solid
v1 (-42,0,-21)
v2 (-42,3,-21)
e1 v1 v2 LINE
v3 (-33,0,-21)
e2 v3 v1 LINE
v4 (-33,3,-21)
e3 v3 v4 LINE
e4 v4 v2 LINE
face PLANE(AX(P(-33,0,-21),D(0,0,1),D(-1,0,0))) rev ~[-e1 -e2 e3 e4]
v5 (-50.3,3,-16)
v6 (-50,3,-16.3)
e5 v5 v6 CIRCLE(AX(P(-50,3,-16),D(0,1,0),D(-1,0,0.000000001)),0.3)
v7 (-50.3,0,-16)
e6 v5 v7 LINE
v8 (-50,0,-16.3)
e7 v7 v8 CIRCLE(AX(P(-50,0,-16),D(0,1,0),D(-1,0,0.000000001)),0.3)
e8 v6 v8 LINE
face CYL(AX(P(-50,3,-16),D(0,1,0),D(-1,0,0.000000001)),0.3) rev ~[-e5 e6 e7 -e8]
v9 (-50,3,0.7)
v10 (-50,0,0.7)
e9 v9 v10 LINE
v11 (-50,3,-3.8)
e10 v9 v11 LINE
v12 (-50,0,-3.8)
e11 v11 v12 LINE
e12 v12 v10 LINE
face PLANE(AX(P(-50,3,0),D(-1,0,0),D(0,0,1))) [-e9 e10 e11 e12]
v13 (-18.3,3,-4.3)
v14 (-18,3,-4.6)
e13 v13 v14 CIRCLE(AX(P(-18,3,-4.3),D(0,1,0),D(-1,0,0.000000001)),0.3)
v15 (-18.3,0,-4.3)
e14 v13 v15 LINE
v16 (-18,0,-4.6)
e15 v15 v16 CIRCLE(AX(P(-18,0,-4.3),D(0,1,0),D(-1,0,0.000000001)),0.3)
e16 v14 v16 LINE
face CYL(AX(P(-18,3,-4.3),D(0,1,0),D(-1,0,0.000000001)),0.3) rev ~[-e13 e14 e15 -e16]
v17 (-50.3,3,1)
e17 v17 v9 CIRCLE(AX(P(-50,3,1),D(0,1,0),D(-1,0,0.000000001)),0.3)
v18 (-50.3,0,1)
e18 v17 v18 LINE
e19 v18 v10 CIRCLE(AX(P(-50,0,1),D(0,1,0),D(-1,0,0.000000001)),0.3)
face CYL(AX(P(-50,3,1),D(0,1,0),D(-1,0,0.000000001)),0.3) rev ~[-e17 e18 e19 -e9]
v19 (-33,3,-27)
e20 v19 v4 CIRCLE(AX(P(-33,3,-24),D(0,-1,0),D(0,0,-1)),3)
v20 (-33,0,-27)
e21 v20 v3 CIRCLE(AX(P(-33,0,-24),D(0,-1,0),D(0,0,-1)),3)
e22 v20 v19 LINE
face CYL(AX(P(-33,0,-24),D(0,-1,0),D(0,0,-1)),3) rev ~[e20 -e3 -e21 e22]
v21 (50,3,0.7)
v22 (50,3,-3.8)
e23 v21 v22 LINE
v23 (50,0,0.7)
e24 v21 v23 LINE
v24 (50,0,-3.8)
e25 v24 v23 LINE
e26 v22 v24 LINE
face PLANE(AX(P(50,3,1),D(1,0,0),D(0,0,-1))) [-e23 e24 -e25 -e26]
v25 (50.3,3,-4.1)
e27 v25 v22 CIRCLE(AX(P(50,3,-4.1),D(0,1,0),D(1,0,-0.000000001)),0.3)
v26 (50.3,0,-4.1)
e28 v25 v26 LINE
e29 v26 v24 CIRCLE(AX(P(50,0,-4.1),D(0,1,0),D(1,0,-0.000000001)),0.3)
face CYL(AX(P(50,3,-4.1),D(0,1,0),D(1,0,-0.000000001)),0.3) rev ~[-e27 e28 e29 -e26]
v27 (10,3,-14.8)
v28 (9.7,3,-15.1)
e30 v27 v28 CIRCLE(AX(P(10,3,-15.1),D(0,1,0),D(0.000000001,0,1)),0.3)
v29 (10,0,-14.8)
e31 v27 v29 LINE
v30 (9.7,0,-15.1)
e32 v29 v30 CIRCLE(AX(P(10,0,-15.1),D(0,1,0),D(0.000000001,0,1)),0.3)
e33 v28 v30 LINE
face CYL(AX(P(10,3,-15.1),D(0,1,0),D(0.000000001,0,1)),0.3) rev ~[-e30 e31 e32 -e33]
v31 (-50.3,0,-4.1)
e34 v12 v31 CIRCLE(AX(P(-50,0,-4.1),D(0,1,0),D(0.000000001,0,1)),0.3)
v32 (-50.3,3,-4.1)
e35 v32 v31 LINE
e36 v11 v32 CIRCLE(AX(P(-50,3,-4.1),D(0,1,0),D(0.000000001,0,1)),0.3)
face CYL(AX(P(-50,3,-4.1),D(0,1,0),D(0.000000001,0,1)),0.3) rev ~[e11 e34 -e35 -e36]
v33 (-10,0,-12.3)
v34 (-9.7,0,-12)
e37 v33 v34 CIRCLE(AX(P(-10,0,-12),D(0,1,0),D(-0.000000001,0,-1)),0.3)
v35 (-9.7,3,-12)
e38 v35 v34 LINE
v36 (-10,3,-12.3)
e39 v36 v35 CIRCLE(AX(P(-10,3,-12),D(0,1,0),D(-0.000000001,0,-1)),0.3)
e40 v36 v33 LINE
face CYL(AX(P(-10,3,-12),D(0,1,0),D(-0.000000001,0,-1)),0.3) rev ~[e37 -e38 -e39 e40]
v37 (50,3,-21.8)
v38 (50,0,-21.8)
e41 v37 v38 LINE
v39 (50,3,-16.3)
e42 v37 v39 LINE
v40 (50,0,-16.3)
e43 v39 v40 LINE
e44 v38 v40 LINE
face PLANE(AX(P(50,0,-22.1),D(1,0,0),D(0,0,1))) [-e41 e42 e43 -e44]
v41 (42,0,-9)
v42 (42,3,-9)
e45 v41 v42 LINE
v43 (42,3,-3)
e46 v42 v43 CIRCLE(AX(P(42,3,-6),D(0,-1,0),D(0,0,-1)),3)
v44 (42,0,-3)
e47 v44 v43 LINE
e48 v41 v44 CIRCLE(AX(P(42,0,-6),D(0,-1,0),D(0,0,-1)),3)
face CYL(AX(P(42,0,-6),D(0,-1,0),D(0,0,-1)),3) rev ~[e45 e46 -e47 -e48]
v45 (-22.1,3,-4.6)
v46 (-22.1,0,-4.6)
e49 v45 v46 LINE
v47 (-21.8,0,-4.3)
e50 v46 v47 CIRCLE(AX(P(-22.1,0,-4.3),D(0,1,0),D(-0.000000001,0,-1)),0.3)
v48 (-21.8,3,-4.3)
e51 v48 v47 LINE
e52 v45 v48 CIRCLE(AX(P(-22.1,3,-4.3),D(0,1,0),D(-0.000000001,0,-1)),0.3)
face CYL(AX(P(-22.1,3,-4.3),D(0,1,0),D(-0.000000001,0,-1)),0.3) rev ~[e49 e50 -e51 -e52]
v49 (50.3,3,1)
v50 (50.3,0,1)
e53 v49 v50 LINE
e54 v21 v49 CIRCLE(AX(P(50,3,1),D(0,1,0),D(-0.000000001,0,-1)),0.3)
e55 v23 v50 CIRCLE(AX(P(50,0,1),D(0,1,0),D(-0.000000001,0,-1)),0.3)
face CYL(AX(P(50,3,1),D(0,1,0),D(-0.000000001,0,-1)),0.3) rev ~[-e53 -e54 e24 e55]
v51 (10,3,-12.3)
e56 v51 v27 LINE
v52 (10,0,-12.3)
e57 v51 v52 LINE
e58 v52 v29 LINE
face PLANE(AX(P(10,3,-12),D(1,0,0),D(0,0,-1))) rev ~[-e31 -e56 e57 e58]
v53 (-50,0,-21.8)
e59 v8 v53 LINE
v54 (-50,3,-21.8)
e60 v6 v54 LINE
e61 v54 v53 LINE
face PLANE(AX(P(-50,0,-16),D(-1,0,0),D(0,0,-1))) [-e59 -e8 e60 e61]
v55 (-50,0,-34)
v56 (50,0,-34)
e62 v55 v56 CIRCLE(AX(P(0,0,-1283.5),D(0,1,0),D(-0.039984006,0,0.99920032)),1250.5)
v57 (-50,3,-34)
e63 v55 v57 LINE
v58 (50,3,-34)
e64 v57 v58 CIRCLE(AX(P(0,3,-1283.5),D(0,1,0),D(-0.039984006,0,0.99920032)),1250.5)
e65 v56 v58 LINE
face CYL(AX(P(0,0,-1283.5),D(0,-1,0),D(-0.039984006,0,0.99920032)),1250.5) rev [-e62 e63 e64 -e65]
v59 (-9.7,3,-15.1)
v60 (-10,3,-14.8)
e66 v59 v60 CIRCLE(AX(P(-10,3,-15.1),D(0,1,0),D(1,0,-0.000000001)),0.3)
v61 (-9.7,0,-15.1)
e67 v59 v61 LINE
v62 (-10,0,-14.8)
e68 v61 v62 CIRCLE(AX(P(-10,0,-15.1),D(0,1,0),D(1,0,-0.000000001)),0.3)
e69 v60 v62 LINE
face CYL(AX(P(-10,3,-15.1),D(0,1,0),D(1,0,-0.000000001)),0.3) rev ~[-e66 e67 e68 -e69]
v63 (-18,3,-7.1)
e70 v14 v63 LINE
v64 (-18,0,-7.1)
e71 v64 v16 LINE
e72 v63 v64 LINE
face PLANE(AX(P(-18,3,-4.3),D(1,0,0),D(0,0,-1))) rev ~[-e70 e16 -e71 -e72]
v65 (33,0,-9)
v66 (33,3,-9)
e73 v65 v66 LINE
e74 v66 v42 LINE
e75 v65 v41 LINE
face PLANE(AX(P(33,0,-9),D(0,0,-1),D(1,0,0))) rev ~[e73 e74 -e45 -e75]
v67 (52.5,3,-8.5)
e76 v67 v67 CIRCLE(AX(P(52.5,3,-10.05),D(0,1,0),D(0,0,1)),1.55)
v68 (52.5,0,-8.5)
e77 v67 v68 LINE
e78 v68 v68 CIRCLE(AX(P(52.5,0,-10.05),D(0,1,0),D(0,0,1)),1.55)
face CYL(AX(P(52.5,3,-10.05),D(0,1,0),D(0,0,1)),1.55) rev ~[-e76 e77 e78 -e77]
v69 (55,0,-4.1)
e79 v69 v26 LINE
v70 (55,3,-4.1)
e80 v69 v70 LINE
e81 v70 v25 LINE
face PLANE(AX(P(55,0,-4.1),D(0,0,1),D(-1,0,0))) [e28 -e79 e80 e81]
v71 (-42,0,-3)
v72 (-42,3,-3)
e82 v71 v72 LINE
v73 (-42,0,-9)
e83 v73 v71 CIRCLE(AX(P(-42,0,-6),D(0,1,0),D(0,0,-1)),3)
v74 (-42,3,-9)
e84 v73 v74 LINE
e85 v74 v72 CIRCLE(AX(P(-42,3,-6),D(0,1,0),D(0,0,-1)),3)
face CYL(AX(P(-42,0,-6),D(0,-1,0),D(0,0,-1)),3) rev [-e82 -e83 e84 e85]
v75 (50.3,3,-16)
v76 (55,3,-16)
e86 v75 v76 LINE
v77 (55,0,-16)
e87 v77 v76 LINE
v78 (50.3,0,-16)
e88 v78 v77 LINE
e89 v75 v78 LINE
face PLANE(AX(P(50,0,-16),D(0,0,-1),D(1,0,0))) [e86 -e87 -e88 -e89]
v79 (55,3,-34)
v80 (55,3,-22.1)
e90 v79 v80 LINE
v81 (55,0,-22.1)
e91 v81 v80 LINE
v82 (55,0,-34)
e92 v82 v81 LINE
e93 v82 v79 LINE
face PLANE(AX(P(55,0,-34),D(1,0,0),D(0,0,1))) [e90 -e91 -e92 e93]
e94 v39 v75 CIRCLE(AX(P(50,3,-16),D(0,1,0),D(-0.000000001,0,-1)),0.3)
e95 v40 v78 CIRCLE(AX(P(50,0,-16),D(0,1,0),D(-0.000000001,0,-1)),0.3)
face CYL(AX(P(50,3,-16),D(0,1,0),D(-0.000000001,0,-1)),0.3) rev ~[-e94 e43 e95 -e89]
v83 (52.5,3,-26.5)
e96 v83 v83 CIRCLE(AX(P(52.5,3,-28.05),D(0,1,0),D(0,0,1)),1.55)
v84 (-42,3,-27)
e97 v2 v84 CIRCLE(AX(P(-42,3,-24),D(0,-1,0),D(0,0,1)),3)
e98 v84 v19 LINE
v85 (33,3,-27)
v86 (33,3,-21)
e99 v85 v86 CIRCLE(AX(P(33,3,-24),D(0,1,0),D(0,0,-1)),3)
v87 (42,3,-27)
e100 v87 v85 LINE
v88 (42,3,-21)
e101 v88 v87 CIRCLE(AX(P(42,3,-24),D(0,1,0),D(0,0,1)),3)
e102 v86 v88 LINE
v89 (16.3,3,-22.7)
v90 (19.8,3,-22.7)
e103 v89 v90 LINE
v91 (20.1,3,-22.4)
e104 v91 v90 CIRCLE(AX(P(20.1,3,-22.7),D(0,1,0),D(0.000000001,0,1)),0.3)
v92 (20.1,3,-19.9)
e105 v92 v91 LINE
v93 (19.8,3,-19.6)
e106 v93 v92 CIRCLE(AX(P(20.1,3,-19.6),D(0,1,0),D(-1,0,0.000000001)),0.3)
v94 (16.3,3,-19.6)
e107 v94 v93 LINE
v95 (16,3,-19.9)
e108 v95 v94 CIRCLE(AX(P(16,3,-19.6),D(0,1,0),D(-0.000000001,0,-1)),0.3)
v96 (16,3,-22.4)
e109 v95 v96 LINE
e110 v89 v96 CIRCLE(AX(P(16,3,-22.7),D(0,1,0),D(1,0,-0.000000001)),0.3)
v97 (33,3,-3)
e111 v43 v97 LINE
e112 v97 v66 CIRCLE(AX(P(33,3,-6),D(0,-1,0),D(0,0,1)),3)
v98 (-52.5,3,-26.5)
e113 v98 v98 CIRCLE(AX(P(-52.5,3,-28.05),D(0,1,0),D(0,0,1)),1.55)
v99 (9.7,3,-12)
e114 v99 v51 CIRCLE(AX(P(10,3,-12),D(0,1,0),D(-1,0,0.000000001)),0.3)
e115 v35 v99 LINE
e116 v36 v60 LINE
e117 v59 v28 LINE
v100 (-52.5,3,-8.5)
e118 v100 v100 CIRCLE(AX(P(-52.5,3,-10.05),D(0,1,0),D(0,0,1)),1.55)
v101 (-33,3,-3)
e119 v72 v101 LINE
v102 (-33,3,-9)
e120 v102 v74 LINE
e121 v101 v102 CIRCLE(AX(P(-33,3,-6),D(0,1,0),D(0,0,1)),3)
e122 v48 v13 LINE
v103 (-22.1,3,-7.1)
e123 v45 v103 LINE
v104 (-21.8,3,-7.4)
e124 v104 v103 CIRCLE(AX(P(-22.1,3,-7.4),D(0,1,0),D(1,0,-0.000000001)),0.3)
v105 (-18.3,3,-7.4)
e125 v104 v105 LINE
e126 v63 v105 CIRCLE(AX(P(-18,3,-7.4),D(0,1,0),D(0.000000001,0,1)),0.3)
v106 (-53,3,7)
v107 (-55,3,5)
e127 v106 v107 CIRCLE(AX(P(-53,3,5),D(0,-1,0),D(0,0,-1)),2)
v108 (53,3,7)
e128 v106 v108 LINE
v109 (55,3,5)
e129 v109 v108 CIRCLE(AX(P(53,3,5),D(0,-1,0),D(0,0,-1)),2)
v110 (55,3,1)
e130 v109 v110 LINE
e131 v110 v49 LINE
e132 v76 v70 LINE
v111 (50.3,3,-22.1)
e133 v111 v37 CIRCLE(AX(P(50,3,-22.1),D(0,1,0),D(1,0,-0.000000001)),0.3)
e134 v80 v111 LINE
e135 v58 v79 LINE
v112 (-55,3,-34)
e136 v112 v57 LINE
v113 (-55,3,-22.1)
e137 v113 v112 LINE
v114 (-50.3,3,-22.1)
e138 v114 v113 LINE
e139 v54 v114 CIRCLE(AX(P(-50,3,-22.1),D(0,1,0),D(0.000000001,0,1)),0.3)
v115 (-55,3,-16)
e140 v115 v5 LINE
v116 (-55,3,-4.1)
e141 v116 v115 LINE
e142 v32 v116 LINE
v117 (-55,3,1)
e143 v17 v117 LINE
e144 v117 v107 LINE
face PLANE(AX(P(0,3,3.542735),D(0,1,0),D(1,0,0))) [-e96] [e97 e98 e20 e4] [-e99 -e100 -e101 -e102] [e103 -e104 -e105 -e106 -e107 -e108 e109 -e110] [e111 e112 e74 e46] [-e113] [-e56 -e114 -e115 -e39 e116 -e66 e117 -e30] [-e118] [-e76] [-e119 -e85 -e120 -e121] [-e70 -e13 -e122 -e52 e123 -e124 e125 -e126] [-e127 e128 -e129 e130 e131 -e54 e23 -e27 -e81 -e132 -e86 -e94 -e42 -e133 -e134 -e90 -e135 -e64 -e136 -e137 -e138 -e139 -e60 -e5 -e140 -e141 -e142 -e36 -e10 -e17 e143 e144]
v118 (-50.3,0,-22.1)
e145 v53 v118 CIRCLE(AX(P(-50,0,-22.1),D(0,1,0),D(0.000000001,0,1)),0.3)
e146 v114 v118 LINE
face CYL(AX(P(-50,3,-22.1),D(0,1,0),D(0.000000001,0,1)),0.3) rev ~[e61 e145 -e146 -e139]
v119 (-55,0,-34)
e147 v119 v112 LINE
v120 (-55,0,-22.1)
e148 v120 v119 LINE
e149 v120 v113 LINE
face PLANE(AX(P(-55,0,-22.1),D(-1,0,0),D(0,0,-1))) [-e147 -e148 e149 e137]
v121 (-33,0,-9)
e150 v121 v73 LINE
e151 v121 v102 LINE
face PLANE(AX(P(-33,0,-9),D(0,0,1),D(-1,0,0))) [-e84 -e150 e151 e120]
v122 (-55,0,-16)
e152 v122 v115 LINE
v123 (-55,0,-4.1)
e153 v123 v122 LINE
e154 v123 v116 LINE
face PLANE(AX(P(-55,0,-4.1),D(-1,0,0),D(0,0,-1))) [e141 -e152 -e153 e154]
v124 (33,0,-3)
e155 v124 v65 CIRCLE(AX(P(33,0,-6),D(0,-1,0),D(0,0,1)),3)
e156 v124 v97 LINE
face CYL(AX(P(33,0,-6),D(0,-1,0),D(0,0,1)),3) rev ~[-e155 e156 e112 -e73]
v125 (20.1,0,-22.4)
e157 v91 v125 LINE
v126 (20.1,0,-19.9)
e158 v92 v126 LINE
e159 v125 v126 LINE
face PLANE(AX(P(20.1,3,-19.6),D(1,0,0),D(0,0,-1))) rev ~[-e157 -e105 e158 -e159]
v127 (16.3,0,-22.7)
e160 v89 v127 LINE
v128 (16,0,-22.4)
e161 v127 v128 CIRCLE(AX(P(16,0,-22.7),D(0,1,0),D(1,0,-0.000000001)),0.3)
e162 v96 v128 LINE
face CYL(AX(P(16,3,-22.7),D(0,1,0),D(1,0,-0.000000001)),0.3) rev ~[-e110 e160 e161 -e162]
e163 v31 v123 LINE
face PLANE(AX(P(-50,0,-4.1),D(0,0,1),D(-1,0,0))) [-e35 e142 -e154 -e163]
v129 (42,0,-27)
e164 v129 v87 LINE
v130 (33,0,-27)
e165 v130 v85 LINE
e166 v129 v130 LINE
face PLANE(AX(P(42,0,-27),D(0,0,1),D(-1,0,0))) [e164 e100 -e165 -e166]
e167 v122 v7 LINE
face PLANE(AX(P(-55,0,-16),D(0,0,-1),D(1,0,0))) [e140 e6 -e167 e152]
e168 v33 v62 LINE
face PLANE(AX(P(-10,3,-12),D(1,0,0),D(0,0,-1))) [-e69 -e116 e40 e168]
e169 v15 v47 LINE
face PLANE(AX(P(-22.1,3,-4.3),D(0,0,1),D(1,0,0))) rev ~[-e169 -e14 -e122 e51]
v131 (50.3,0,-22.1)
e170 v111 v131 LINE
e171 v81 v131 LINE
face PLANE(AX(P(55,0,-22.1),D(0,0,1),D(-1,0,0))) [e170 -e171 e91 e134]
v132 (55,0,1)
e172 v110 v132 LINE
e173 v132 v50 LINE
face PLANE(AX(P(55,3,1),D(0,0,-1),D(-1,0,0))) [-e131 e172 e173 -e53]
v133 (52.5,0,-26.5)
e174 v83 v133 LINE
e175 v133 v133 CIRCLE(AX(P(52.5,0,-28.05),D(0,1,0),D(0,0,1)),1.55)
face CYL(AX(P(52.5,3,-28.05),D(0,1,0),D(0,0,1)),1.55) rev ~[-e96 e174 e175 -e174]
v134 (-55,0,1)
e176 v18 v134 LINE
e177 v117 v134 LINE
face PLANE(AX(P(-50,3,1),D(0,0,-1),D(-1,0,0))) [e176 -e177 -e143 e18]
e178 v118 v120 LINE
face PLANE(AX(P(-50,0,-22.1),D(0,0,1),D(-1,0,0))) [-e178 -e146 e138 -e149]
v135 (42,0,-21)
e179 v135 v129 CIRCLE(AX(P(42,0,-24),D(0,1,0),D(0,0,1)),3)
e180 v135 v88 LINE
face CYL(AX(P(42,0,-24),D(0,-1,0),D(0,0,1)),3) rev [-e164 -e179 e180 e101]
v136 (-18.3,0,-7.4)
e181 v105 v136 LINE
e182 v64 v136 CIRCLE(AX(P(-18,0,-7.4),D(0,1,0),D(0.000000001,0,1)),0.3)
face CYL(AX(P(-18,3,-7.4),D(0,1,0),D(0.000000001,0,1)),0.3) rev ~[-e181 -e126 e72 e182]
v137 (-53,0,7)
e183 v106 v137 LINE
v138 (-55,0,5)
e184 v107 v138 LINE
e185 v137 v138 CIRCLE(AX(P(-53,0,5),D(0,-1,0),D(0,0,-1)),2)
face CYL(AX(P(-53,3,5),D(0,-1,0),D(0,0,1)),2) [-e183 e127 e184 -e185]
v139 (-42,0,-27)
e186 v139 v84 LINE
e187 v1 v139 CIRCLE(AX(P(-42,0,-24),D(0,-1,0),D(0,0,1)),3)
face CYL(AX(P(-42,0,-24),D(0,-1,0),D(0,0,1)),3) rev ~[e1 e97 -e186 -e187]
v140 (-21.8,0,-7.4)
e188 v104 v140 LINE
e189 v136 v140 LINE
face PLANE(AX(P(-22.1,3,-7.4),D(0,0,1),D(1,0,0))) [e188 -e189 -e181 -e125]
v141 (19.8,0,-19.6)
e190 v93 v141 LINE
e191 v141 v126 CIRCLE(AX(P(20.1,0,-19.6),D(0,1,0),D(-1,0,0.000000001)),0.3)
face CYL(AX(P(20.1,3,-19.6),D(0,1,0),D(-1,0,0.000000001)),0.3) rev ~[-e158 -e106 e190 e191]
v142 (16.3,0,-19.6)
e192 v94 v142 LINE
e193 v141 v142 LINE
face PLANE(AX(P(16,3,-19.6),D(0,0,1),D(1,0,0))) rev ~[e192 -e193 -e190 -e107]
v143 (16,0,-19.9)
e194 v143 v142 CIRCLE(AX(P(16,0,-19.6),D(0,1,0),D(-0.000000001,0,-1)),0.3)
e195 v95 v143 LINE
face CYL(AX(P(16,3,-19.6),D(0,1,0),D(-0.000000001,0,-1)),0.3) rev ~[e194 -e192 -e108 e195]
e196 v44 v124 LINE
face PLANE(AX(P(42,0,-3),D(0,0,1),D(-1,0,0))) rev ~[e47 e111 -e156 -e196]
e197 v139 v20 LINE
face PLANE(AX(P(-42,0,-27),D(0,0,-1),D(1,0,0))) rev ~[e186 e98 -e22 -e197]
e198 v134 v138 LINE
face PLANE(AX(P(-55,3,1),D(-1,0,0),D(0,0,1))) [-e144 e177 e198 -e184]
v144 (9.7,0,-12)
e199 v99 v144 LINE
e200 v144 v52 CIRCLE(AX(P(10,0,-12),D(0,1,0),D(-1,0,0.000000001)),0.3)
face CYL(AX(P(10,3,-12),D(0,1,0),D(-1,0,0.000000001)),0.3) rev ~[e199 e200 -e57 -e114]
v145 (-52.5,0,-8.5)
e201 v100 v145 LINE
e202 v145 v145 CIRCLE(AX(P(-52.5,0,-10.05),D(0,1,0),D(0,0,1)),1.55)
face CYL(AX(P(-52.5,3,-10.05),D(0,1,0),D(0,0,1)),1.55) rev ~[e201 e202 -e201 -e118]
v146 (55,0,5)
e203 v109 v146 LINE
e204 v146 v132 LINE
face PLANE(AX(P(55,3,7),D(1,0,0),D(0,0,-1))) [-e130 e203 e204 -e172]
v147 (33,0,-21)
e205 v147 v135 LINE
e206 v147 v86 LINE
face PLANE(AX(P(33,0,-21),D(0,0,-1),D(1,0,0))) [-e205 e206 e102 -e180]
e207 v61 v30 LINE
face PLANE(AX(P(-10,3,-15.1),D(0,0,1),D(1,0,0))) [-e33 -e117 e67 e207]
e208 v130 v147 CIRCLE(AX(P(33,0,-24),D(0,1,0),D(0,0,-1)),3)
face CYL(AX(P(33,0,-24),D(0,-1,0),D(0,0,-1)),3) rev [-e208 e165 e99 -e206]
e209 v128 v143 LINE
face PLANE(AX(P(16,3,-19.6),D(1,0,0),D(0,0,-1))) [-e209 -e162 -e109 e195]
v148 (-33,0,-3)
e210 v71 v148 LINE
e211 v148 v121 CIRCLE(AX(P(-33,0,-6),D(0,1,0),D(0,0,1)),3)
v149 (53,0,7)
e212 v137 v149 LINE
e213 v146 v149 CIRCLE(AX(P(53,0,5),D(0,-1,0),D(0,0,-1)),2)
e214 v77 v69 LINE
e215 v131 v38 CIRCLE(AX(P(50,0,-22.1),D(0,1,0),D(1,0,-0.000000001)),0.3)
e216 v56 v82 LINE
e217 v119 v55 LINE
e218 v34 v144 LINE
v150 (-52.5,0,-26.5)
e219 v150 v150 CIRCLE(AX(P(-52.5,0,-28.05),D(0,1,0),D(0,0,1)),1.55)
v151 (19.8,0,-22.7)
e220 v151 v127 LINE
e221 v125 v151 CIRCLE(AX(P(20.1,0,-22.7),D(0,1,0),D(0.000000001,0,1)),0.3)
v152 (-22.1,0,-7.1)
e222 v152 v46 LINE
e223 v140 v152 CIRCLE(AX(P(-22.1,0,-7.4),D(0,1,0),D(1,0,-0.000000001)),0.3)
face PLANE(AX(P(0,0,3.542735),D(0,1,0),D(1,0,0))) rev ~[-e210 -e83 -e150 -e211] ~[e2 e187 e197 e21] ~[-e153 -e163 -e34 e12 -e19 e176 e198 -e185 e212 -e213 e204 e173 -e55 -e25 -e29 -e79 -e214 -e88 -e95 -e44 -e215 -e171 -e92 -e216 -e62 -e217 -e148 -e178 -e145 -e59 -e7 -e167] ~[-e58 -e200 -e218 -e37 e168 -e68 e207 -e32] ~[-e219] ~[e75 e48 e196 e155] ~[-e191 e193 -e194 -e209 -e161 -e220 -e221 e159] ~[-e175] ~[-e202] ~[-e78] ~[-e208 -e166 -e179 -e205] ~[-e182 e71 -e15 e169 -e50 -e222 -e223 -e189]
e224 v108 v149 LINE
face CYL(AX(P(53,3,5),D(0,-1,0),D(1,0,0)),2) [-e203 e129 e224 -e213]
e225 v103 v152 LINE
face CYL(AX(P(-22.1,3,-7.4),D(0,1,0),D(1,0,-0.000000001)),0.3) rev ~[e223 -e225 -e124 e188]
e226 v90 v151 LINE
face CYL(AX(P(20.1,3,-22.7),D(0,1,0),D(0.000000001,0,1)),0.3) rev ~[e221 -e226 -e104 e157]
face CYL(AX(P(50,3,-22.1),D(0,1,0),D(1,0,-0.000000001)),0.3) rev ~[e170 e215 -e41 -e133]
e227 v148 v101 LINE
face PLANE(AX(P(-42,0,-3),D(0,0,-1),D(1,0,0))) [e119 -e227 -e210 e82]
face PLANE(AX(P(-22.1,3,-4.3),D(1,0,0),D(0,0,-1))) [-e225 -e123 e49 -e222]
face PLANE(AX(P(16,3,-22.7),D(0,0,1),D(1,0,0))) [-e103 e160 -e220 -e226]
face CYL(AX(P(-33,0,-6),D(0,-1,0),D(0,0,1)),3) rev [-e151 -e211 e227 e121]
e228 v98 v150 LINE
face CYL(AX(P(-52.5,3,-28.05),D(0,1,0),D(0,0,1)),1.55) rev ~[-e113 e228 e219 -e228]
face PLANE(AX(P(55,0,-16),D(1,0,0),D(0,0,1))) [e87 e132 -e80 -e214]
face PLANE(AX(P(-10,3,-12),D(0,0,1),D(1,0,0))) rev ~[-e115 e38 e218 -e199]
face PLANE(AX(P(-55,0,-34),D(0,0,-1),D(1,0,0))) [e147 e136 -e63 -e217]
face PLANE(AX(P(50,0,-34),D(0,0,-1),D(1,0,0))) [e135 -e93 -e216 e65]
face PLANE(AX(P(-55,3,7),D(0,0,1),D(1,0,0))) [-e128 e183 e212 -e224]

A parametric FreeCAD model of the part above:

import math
import FreeCAD as App
import Part
import Sketcher

V = App.Vector
Q = App.Units.Quantity


def edges_at(feature, points):
    """Names of the edges that pass closest to the given points."""
    edges = feature.Shape.Edges
    near = lambda p: min(range(len(edges)), key=lambda i: edges[i].distToShape(Part.Vertex(*p))[0])
    return sorted({f"Edge{near(p) + 1}" for p in points})


def add_polygon(sketch, points):
    """Adds a closed chain of lines whose ends are joined by coincident constraints."""
    first, n = sketch.GeometryCount, len(points)
    for a, b in zip(points, points[1:] + points[:1]):
        sketch.addGeometry(Part.LineSegment(App.Vector(*a, 0), App.Vector(*b, 0)), False)
    for i in range(n):
        sketch.addConstraint(Sketcher.Constraint("Coincident", first + i, 2, first + (i + 1) % n, 1))

doc = App.newDocument("Part")
params = doc.addObject("Spreadsheet::Sheet", "Params")
for row, (alias, value) in enumerate([
    ("sketch1_radius", "3 mm"),
    ("sketch1_radius2", "1250.5 mm"),
    ("sketch1_width", "5 mm"),
    ("sketch1_width2", "100 mm"),
    ("sketch1_width3", "9 mm"),
    ("pad1_length", "3 mm"),
    ("sketch2_width", "4.1 mm"),
    ("sketch2_height", "3.1 mm"),
    ("pocket1_length", "10 mm"),
    ("sketch3_width", "5 mm"),
    ("sketch3_width2", "110 mm"),
    ("sketch3_height", "1 mm"),
    ("sketch3_height2", "6 mm"),
    ("pad2_length", "3 mm"),
    ("fillet_radius", "2 mm"),
    ("sketch4_diameter", "3.1 mm"),
    ("sketch4_width", "20 mm"),
    ("sketch4_height", "3.1 mm"),
    ("pocket2_length", "3 mm"),
    ("sketch5_radius", "0.3 mm"),
    ("pocket3_length", "10 mm"),
], start=1):
    params.set(f"A{row}", alias)
    params.set(f"B{row}", "=" + value)
    params.setAlias(f"B{row}", alias)

body = doc.addObject("PartDesign::Body", "Body")

sketch1 = body.newObject("Sketcher::SketchObject", "Sketch")
sketch1.AttachmentSupport = (doc.getObject("XZ_Plane"), [""])
sketch1.MapMode = "FlatFace"
sketch1.addGeometry([
    Part.LineSegment(V(55, -22.1, 0), V(55, -34, 0)),
    Part.LineSegment(V(55, -34, 0), V(50, -34, 0)),
    Part.ArcOfCircle(Part.Circle(V(0, -1283.5, 0), V(0, 0, 1), 1250.5), math.radians(87.708474), math.radians(92.291526)),
    Part.LineSegment(V(-50, -34, 0), V(-55, -34, 0)),
    Part.LineSegment(V(-55, -34, 0), V(-55, -22.1, 0)),
    Part.LineSegment(V(-55, -22.1, 0), V(-50, -22.1, 0)),
    Part.LineSegment(V(-50, -22.1, 0), V(-50, -16, 0)),
    Part.LineSegment(V(-50, -16, 0), V(-55, -16, 0)),
    Part.LineSegment(V(-55, -16, 0), V(-55, -4.1, 0)),
    Part.LineSegment(V(-55, -4.1, 0), V(-50, -4.1, 0)),
    Part.LineSegment(V(-50, -4.1, 0), V(-50, 0, 0)),
    Part.LineSegment(V(-50, 0, 0), V(50, 0, 0)),
    Part.LineSegment(V(50, 0, 0), V(50, -4.1, 0)),
    Part.LineSegment(V(50, -4.1, 0), V(55, -4.1, 0)),
    Part.LineSegment(V(55, -4.1, 0), V(55, -16, 0)),
    Part.LineSegment(V(55, -16, 0), V(50, -16, 0)),
    Part.LineSegment(V(50, -16, 0), V(50, -22.1, 0)),
    Part.LineSegment(V(50, -22.1, 0), V(55, -22.1, 0)),
    Part.LineSegment(V(33, -9, 0), V(42, -9, 0)),
    Part.ArcOfCircle(Part.Circle(V(42, -6, 0), V(0, 0, 1), 3), math.radians(-90), math.radians(90)),
    Part.LineSegment(V(42, -3, 0), V(33, -3, 0)),
    Part.ArcOfCircle(Part.Circle(V(33, -6, 0), V(0, 0, 1), 3), math.radians(90), math.radians(270)),
    Part.ArcOfCircle(Part.Circle(V(-42, -6, 0), V(0, 0, 1), 3), math.radians(90), math.radians(270)),
    Part.LineSegment(V(-42, -9, 0), V(-33, -9, 0)),
    Part.ArcOfCircle(Part.Circle(V(-33, -6, 0), V(0, 0, 1), 3), math.radians(-90), math.radians(90)),
    Part.LineSegment(V(-33, -3, 0), V(-42, -3, 0)),
    Part.ArcOfCircle(Part.Circle(V(42, -24, 0), V(0, 0, 1), 3), math.radians(-90), math.radians(90)),
    Part.LineSegment(V(42, -21, 0), V(33, -21, 0)),
    Part.ArcOfCircle(Part.Circle(V(33, -24, 0), V(0, 0, 1), 3), math.radians(90), math.radians(270)),
    Part.LineSegment(V(33, -27, 0), V(42, -27, 0)),
    Part.LineSegment(V(-33, -21, 0), V(-42, -21, 0)),
    Part.ArcOfCircle(Part.Circle(V(-42, -24, 0), V(0, 0, 1), 3), math.radians(90), math.radians(270)),
    Part.LineSegment(V(-42, -27, 0), V(-33, -27, 0)),
    Part.ArcOfCircle(Part.Circle(V(-33, -24, 0), V(0, 0, 1), 3), math.radians(-90), math.radians(90)),
], False)
sketch1.addConstraint([
    Sketcher.Constraint("Coincident", 0, 2, 1, 1),
    Sketcher.Constraint("Coincident", 1, 2, 2, 1),
    Sketcher.Constraint("Coincident", 2, 2, 3, 1),
    Sketcher.Constraint("Coincident", 3, 2, 4, 1),
    Sketcher.Constraint("Coincident", 4, 2, 5, 1),
    Sketcher.Constraint("Coincident", 5, 2, 6, 1),
    Sketcher.Constraint("Coincident", 6, 2, 7, 1),
    Sketcher.Constraint("Coincident", 7, 2, 8, 1),
    Sketcher.Constraint("Coincident", 8, 2, 9, 1),
    Sketcher.Constraint("Coincident", 9, 2, 10, 1),
    Sketcher.Constraint("Coincident", 10, 2, 11, 1),
    Sketcher.Constraint("Coincident", 11, 2, 12, 1),
    Sketcher.Constraint("Coincident", 12, 2, 13, 1),
    Sketcher.Constraint("Coincident", 13, 2, 14, 1),
    Sketcher.Constraint("Coincident", 14, 2, 15, 1),
    Sketcher.Constraint("Coincident", 15, 2, 16, 1),
    Sketcher.Constraint("Coincident", 16, 2, 17, 1),
    Sketcher.Constraint("Coincident", 17, 2, 0, 1),
    Sketcher.Constraint("Tangent", 18, 2, 19, 1),
    Sketcher.Constraint("Tangent", 19, 2, 20, 1),
    Sketcher.Constraint("Tangent", 20, 2, 21, 1),
    Sketcher.Constraint("Tangent", 21, 2, 18, 1),
    Sketcher.Constraint("Tangent", 22, 2, 23, 1),
    Sketcher.Constraint("Tangent", 23, 2, 24, 1),
    Sketcher.Constraint("Tangent", 24, 2, 25, 1),
    Sketcher.Constraint("Tangent", 25, 2, 22, 1),
    Sketcher.Constraint("Tangent", 26, 2, 27, 1),
    Sketcher.Constraint("Tangent", 27, 2, 28, 1),
    Sketcher.Constraint("Tangent", 28, 2, 29, 1),
    Sketcher.Constraint("Tangent", 29, 2, 26, 1),
    Sketcher.Constraint("Tangent", 30, 2, 31, 1),
    Sketcher.Constraint("Tangent", 31, 2, 32, 1),
    Sketcher.Constraint("Tangent", 32, 2, 33, 1),
    Sketcher.Constraint("Tangent", 33, 2, 30, 1),
    Sketcher.Constraint("Vertical", 0),
    Sketcher.Constraint("Horizontal", 1),
    Sketcher.Constraint("Horizontal", 3),
    Sketcher.Constraint("Vertical", 4),
    Sketcher.Constraint("Horizontal", 5),
    Sketcher.Constraint("Vertical", 6),
    Sketcher.Constraint("Horizontal", 7),
    Sketcher.Constraint("Vertical", 8),
    Sketcher.Constraint("Horizontal", 9),
    Sketcher.Constraint("Vertical", 10),
    Sketcher.Constraint("Horizontal", 11),
    Sketcher.Constraint("Vertical", 12),
    Sketcher.Constraint("Horizontal", 13),
    Sketcher.Constraint("Vertical", 14),
    Sketcher.Constraint("Horizontal", 15),
    Sketcher.Constraint("Vertical", 16),
    Sketcher.Constraint("Horizontal", 17),
    Sketcher.Constraint("Horizontal", 18),
    Sketcher.Constraint("Horizontal", 20),
    Sketcher.Constraint("Horizontal", 23),
    Sketcher.Constraint("Horizontal", 25),
    Sketcher.Constraint("Horizontal", 27),
    Sketcher.Constraint("Horizontal", 29),
    Sketcher.Constraint("Horizontal", 30),
    Sketcher.Constraint("Horizontal", 32),
    Sketcher.Constraint("Equal", 21, 22),
    Sketcher.Constraint("Equal", 24, 26),
    Sketcher.Constraint("Equal", 28, 31),
    Sketcher.Constraint("Symmetric", 10, 2, 11, 2, -1, 1),
    Sketcher.Constraint("Symmetric", 19, 3, 22, 3, -2),
    Sketcher.Constraint("Symmetric", 26, 3, 31, 3, -2),
    Sketcher.Constraint("Symmetric", 0, 2, 3, 2, -2),
    Sketcher.Constraint("Symmetric", 8, 2, 13, 2, -2),
    Sketcher.Constraint("Symmetric", 6, 2, 15, 2, -2),
    Sketcher.Constraint("PointOnObject", 2, 3, -2),
    Sketcher.Constraint("Horizontal", 5, 2, 16, 2),
    Sketcher.Constraint("Vertical", 19, 3, 26, 3),
    Sketcher.Constraint("Vertical", 21, 3, 28, 3),
    Sketcher.Constraint("Vertical", 24, 3, 33, 3),
    Sketcher.Constraint("Vertical", 4, 2, 7, 2),
    Sketcher.Constraint("Vertical", 6, 2, 9, 2),
    Sketcher.Constraint("Vertical", 1, 2, 11, 2),
    Sketcher.Constraint("Equal", 20, 23),
    Sketcher.Constraint("Equal", 4, 8),
    Sketcher.Constraint("Radius", 19, Q("3 mm")),
    Sketcher.Constraint("Radius", 2, Q("1250.5 mm")),
    Sketcher.Constraint("DistanceX", 1, 2, 1, 1, Q("5 mm")),
    Sketcher.Constraint("DistanceX", 11, 1, 11, 2, Q("100 mm")),
    Sketcher.Constraint("DistanceX", 18, 1, 18, 2, Q("9 mm")),
    Sketcher.Constraint("DistanceY", 0, 2, 0, 1, Q("11.9 mm")),
    Sketcher.Constraint("DistanceY", 6, 1, 6, 2, Q("6.1 mm")),
    Sketcher.Constraint("DistanceY", 10, 1, 10, 2, Q("4.1 mm")),
    Sketcher.Constraint("DistanceX", -1, 1, 19, 3, Q("42 mm")),
    Sketcher.Constraint("DistanceY", 19, 3, -1, 1, Q("6 mm")),
    Sketcher.Constraint("DistanceY", 26, 3, -1, 1, Q("24 mm")),
])
sketch1.setExpression("Constraints[78]", "Params.sketch1_radius")
sketch1.setExpression("Constraints[79]", "Params.sketch1_radius2")
sketch1.setExpression("Constraints[80]", "Params.sketch1_width")
sketch1.setExpression("Constraints[81]", "Params.sketch1_width2")
sketch1.setExpression("Constraints[82]", "Params.sketch1_width3")
pad1 = body.newObject("PartDesign::Pad", "Pad")
pad1.Profile = sketch1
pad1.setExpression("Length", "Params.pad1_length")
pad1.Reversed = True

sketch2 = body.newObject("Sketcher::SketchObject", "Sketch001")
sketch2.AttachmentSupport = (doc.getObject("XZ_Plane"), [""])
sketch2.MapMode = "FlatFace"
sketch2.AttachmentOffset = App.Placement(V(0, 0, -3), App.Rotation())
add_polygon(sketch2, [(-22.1, -7.4), (-22.1, -4.3), (-18, -4.3), (-18, -7.4)])
add_polygon(sketch2, [(16, -22.7), (16, -19.6), (20.1, -19.6), (20.1, -22.7)])
sketch2.addConstraint([
    Sketcher.Constraint("Vertical", 0),
    Sketcher.Constraint("Horizontal", 1),
    Sketcher.Constraint("Vertical", 2),
    Sketcher.Constraint("Horizontal", 3),
    Sketcher.Constraint("Vertical", 4),
    Sketcher.Constraint("Horizontal", 5),
    Sketcher.Constraint("Vertical", 6),
    Sketcher.Constraint("Horizontal", 7),
    Sketcher.Constraint("Equal", 3, 5),
    Sketcher.Constraint("Equal", 2, 4),
    Sketcher.Constraint("DistanceX", 1, 1, 1, 2, Q("4.1 mm")),
    Sketcher.Constraint("DistanceY", 0, 1, 0, 2, Q("3.1 mm")),
    Sketcher.Constraint("DistanceX", 1, 2, -1, 1, Q("18 mm")),
    Sketcher.Constraint("DistanceX", -1, 1, 4, 2, Q("16 mm")),
    Sketcher.Constraint("DistanceY", 0, 2, -1, 1, Q("4.3 mm")),
    Sketcher.Constraint("DistanceY", 4, 2, -1, 1, Q("19.6 mm")),
])
sketch2.setExpression("Constraints[18]", "Params.sketch2_width")
sketch2.setExpression("Constraints[19]", "Params.sketch2_height")
pocket1 = body.newObject("PartDesign::Pocket", "Pocket")
pocket1.Profile = sketch2
pocket1.setExpression("Length", "Params.pocket1_length")
pocket1.Reversed = True

sketch3 = body.newObject("Sketcher::SketchObject", "Sketch002")
sketch3.AttachmentSupport = (doc.getObject("XZ_Plane"), [""])
sketch3.MapMode = "FlatFace"
sketch3.AttachmentOffset = App.Placement(V(0, 0, -3), App.Rotation())
add_polygon(sketch3, [(-50, 0), (-50, 1), (-55, 1), (-55, 7), (55, 7), (55, 1), (50, 1), (50, 0)])
sketch3.addConstraint([
    Sketcher.Constraint("Vertical", 0),
    Sketcher.Constraint("Horizontal", 1),
    Sketcher.Constraint("Vertical", 2),
    Sketcher.Constraint("Horizontal", 3),
    Sketcher.Constraint("Vertical", 4),
    Sketcher.Constraint("Horizontal", 5),
    Sketcher.Constraint("Vertical", 6),
    Sketcher.Constraint("Horizontal", 7),
    Sketcher.Constraint("Symmetric", 6, 2, 7, 2, -1, 1),
    Sketcher.Constraint("Symmetric", 1, 2, 4, 2, -2),
    Sketcher.Constraint("DistanceX", 1, 2, 1, 1, Q("5 mm")),
    Sketcher.Constraint("DistanceX", 3, 1, 3, 2, Q("110 mm")),
    Sketcher.Constraint("DistanceY", 0, 1, 0, 2, Q("1 mm")),
    Sketcher.Constraint("DistanceY", 2, 1, 2, 2, Q("6 mm")),
])
sketch3.setExpression("Constraints[18]", "Params.sketch3_width")
sketch3.setExpression("Constraints[19]", "Params.sketch3_width2")
sketch3.setExpression("Constraints[20]", "Params.sketch3_height")
sketch3.setExpression("Constraints[21]", "Params.sketch3_height2")
pad2 = body.newObject("PartDesign::Pad", "Pad001")
pad2.Profile = sketch3
pad2.setExpression("Length", "Params.pad2_length")
doc.recompute()

fillet = body.newObject("PartDesign::Fillet", "Fillet")
fillet.Base = (pad2, edges_at(pad2, [(55, 1.5, 7), (-55, 1.5, 7)]))
fillet.setExpression("Radius", "Params.fillet_radius")

sketch4 = body.newObject("Sketcher::SketchObject", "Sketch003")
sketch4.AttachmentSupport = (doc.getObject("XZ_Plane"), [""])
sketch4.MapMode = "FlatFace"
sketch4.AttachmentOffset = App.Placement(V(0, 0, -3), App.Rotation())
sketch4.addGeometry(Part.Circle(V(52.5, -28.05, 0), V(0, 0, 1), 1.55), False)
sketch4.addGeometry(Part.Circle(V(52.5, -10.05, 0), V(0, 0, 1), 1.55), False)
sketch4.addGeometry(Part.Circle(V(-52.5, -28.05, 0), V(0, 0, 1), 1.55), False)
sketch4.addGeometry(Part.Circle(V(-52.5, -10.05, 0), V(0, 0, 1), 1.55), False)
add_polygon(sketch4, [(-10, -15.1), (-10, -12), (10, -12), (10, -15.1)])
sketch4.addConstraint([
    Sketcher.Constraint("Vertical", 4),
    Sketcher.Constraint("Horizontal", 5),
    Sketcher.Constraint("Vertical", 6),
    Sketcher.Constraint("Horizontal", 7),
    Sketcher.Constraint("Equal", 0, 1),
    Sketcher.Constraint("Equal", 1, 2),
    Sketcher.Constraint("Equal", 2, 3),
    Sketcher.Constraint("Symmetric", 0, 3, 2, 3, -2),
    Sketcher.Constraint("Symmetric", 1, 3, 3, 3, -2),
    Sketcher.Constraint("Vertical", 0, 3, 1, 3),
    Sketcher.Constraint("Diameter", 0, Q("3.1 mm")),
    Sketcher.Constraint("DistanceX", 5, 1, 5, 2, Q("20 mm")),
    Sketcher.Constraint("DistanceY", 4, 1, 4, 2, Q("3.1 mm")),
    Sketcher.Constraint("DistanceX", 4, 2, -1, 1, Q("10 mm")),
    Sketcher.Constraint("DistanceY", 4, 2, -1, 1, Q("12 mm")),
    Sketcher.Constraint("DistanceY", 0, 3, 1, 3, Q("18 mm")),
    Sketcher.Constraint("DistanceX", 2, 3, 0, 3, Q("105 mm")),
    Sketcher.Constraint("DistanceY", 0, 3, -1, 1, Q("28.05 mm")),
])
sketch4.setExpression("Constraints[14]", "Params.sketch4_diameter")
sketch4.setExpression("Constraints[15]", "Params.sketch4_width")
sketch4.setExpression("Constraints[16]", "Params.sketch4_height")
pocket2 = body.newObject("PartDesign::Pocket", "Pocket001")
pocket2.Profile = sketch4
pocket2.setExpression("Length", "Params.pocket2_length")
pocket2.Reversed = True

sketch5 = body.newObject("Sketcher::SketchObject", "Sketch004")
sketch5.AttachmentSupport = (doc.getObject("XZ_Plane"), [""])
sketch5.MapMode = "FlatFace"
sketch5.AttachmentOffset = App.Placement(V(0, 0, -3), App.Rotation())
sketch5.addGeometry([
    Part.ArcOfCircle(Part.Circle(V(-50, -4.1, 0), V(0, 0, 1), 0.3), math.radians(180), math.radians(450)),
    Part.LineSegment(V(-50.3, -4.1, 0), V(-50, -4.1, 0)),
    Part.LineSegment(V(-50, -4.1, 0), V(-50, -3.8, 0)),
    Part.LineSegment(V(-50, 0.7, 0), V(-50, 1, 0)),
    Part.LineSegment(V(-50, 1, 0), V(-50.3, 1, 0)),
    Part.ArcOfCircle(Part.Circle(V(-50, 1, 0), V(0, 0, 1), 0.3), math.radians(-90), math.radians(180)),
    Part.ArcOfCircle(Part.Circle(V(-50, -22.1, 0), V(0, 0, 1), 0.3), math.radians(180), math.radians(450)),
    Part.LineSegment(V(-50.3, -22.1, 0), V(-50, -22.1, 0)),
    Part.LineSegment(V(-50, -22.1, 0), V(-50, -21.8, 0)),
    Part.ArcOfCircle(Part.Circle(V(-50, -16, 0), V(0, 0, 1), 0.3), math.radians(-90), math.radians(180)),
    Part.LineSegment(V(-50, -16.3, 0), V(-50, -16, 0)),
    Part.LineSegment(V(-50, -16, 0), V(-50.3, -16, 0)),
    Part.LineSegment(V(50.3, -16, 0), V(50, -16, 0)),
    Part.LineSegment(V(50, -16, 0), V(50, -16.3, 0)),
    Part.ArcOfCircle(Part.Circle(V(50, -16, 0), V(0, 0, 1), 0.3), math.radians(0), math.radians(270)),
    Part.LineSegment(V(50, -21.8, 0), V(50, -22.1, 0)),
    Part.LineSegment(V(50, -22.1, 0), V(50.3, -22.1, 0)),
    Part.ArcOfCircle(Part.Circle(V(50, -22.1, 0), V(0, 0, 1), 0.3), math.radians(90), math.radians(360)),
    Part.LineSegment(V(50.3, 1, 0), V(50, 1, 0)),
    Part.LineSegment(V(50, 1, 0), V(50, 0.7, 0)),
    Part.ArcOfCircle(Part.Circle(V(50, 1, 0), V(0, 0, 1), 0.3), math.radians(0), math.radians(270)),
    Part.LineSegment(V(50, -3.8, 0), V(50, -4.1, 0)),
    Part.LineSegment(V(50, -4.1, 0), V(50.3, -4.1, 0)),
    Part.ArcOfCircle(Part.Circle(V(50, -4.1, 0), V(0, 0, 1), 0.3), math.radians(90), math.radians(360)),
    Part.ArcOfCircle(Part.Circle(V(-22.1, -7.4, 0), V(0, 0, 1), 0.3), math.radians(90), math.radians(360)),
    Part.LineSegment(V(-22.1, -7.1, 0), V(-22.1, -7.4, 0)),
    Part.LineSegment(V(-22.1, -7.4, 0), V(-21.8, -7.4, 0)),
    Part.ArcOfCircle(Part.Circle(V(-18, -7.4, 0), V(0, 0, 1), 0.3), math.radians(180), math.radians(450)),
    Part.LineSegment(V(-18.3, -7.4, 0), V(-18, -7.4, 0)),
    Part.LineSegment(V(-18, -7.4, 0), V(-18, -7.1, 0)),
    Part.ArcOfCircle(Part.Circle(V(-18, -4.3, 0), V(0, 0, 1), 0.3), math.radians(-90), math.radians(180)),
    Part.LineSegment(V(-18, -4.6, 0), V(-18, -4.3, 0)),
    Part.LineSegment(V(-18, -4.3, 0), V(-18.3, -4.3, 0)),
    Part.ArcOfCircle(Part.Circle(V(-22.1, -4.3, 0), V(0, 0, 1), 0.3), math.radians(0), math.radians(270)),
    Part.LineSegment(V(-21.8, -4.3, 0), V(-22.1, -4.3, 0)),
    Part.LineSegment(V(-22.1, -4.3, 0), V(-22.1, -4.6, 0)),
    Part.ArcOfCircle(Part.Circle(V(16, -22.7, 0), V(0, 0, 1), 0.3), math.radians(90), math.radians(360)),
    Part.LineSegment(V(16, -22.4, 0), V(16, -22.7, 0)),
    Part.LineSegment(V(16, -22.7, 0), V(16.3, -22.7, 0)),
    Part.ArcOfCircle(Part.Circle(V(20.1, -22.7, 0), V(0, 0, 1), 0.3), math.radians(180), math.radians(450)),
    Part.LineSegment(V(19.8, -22.7, 0), V(20.1, -22.7, 0)),
    Part.LineSegment(V(20.1, -22.7, 0), V(20.1, -22.4, 0)),
    Part.ArcOfCircle(Part.Circle(V(20.1, -19.6, 0), V(0, 0, 1), 0.3), math.radians(-90), math.radians(180)),
    Part.LineSegment(V(20.1, -19.9, 0), V(20.1, -19.6, 0)),
    Part.LineSegment(V(20.1, -19.6, 0), V(19.8, -19.6, 0)),
    Part.ArcOfCircle(Part.Circle(V(16, -19.6, 0), V(0, 0, 1), 0.3), math.radians(0), math.radians(270)),
    Part.LineSegment(V(16.3, -19.6, 0), V(16, -19.6, 0)),
    Part.LineSegment(V(16, -19.6, 0), V(16, -19.9, 0)),
    Part.ArcOfCircle(Part.Circle(V(-10, -15.1, 0), V(0, 0, 1), 0.3), math.radians(90), math.radians(360)),
    Part.LineSegment(V(-10, -14.8, 0), V(-10, -15.1, 0)),
    Part.LineSegment(V(-10, -15.1, 0), V(-9.7, -15.1, 0)),
    Part.ArcOfCircle(Part.Circle(V(10, -15.1, 0), V(0, 0, 1), 0.3), math.radians(180), math.radians(450)),
    Part.LineSegment(V(9.7, -15.1, 0), V(10, -15.1, 0)),
    Part.LineSegment(V(10, -15.1, 0), V(10, -14.8, 0)),
    Part.ArcOfCircle(Part.Circle(V(10, -12, 0), V(0, 0, 1), 0.3), math.radians(-90), math.radians(180)),
    Part.LineSegment(V(10, -12.3, 0), V(10, -12, 0)),
    Part.LineSegment(V(10, -12, 0), V(9.7, -12, 0)),
    Part.ArcOfCircle(Part.Circle(V(-10, -12, 0), V(0, 0, 1), 0.3), math.radians(0), math.radians(270)),
    Part.LineSegment(V(-9.7, -12, 0), V(-10, -12, 0)),
    Part.LineSegment(V(-10, -12, 0), V(-10, -12.3, 0)),
], False)
sketch5.addConstraint([
    Sketcher.Constraint("Coincident", 0, 1, 1, 1),
    Sketcher.Constraint("Coincident", 1, 2, 2, 1),
    Sketcher.Constraint("Coincident", 2, 2, 0, 2),
    Sketcher.Constraint("Coincident", 3, 2, 4, 1),
    Sketcher.Constraint("Coincident", 4, 2, 5, 2),
    Sketcher.Constraint("Coincident", 5, 1, 3, 1),
    Sketcher.Constraint("Coincident", 6, 1, 7, 1),
    Sketcher.Constraint("Coincident", 7, 2, 8, 1),
    Sketcher.Constraint("Coincident", 8, 2, 6, 2),
    Sketcher.Constraint("Coincident", 9, 1, 10, 1),
    Sketcher.Constraint("Coincident", 10, 2, 11, 1),
    Sketcher.Constraint("Coincident", 11, 2, 9, 2),
    Sketcher.Constraint("Coincident", 12, 2, 13, 1),
    Sketcher.Constraint("Coincident", 13, 2, 14, 2),
    Sketcher.Constraint("Coincident", 14, 1, 12, 1),
    Sketcher.Constraint("Coincident", 15, 2, 16, 1),
    Sketcher.Constraint("Coincident", 16, 2, 17, 2),
    Sketcher.Constraint("Coincident", 17, 1, 15, 1),
    Sketcher.Constraint("Coincident", 18, 2, 19, 1),
    Sketcher.Constraint("Coincident", 19, 2, 20, 2),
    Sketcher.Constraint("Coincident", 20, 1, 18, 1),
    Sketcher.Constraint("Coincident", 21, 2, 22, 1),
    Sketcher.Constraint("Coincident", 22, 2, 23, 2),
    Sketcher.Constraint("Coincident", 23, 1, 21, 1),
    Sketcher.Constraint("Coincident", 24, 1, 25, 1),
    Sketcher.Constraint("Coincident", 25, 2, 26, 1),
    Sketcher.Constraint("Coincident", 26, 2, 24, 2),
    Sketcher.Constraint("Coincident", 27, 1, 28, 1),
    Sketcher.Constraint("Coincident", 28, 2, 29, 1),
    Sketcher.Constraint("Coincident", 29, 2, 27, 2),
    Sketcher.Constraint("Coincident", 30, 1, 31, 1),
    Sketcher.Constraint("Coincident", 31, 2, 32, 1),
    Sketcher.Constraint("Coincident", 32, 2, 30, 2),
    Sketcher.Constraint("Coincident", 33, 1, 34, 1),
    Sketcher.Constraint("Coincident", 34, 2, 35, 1),
    Sketcher.Constraint("Coincident", 35, 2, 33, 2),
    Sketcher.Constraint("Coincident", 36, 1, 37, 1),
    Sketcher.Constraint("Coincident", 37, 2, 38, 1),
    Sketcher.Constraint("Coincident", 38, 2, 36, 2),
    Sketcher.Constraint("Coincident", 39, 1, 40, 1),
    Sketcher.Constraint("Coincident", 40, 2, 41, 1),
    Sketcher.Constraint("Coincident", 41, 2, 39, 2),
    Sketcher.Constraint("Coincident", 42, 1, 43, 1),
    Sketcher.Constraint("Coincident", 43, 2, 44, 1),
    Sketcher.Constraint("Coincident", 44, 2, 42, 2),
    Sketcher.Constraint("Coincident", 45, 1, 46, 1),
    Sketcher.Constraint("Coincident", 46, 2, 47, 1),
    Sketcher.Constraint("Coincident", 47, 2, 45, 2),
    Sketcher.Constraint("Coincident", 48, 1, 49, 1),
    Sketcher.Constraint("Coincident", 49, 2, 50, 1),
    Sketcher.Constraint("Coincident", 50, 2, 48, 2),
    Sketcher.Constraint("Coincident", 51, 1, 52, 1),
    Sketcher.Constraint("Coincident", 52, 2, 53, 1),
    Sketcher.Constraint("Coincident", 53, 2, 51, 2),
    Sketcher.Constraint("Coincident", 54, 1, 55, 1),
    Sketcher.Constraint("Coincident", 55, 2, 56, 1),
    Sketcher.Constraint("Coincident", 56, 2, 54, 2),
    Sketcher.Constraint("Coincident", 57, 1, 58, 1),
    Sketcher.Constraint("Coincident", 58, 2, 59, 1),
    Sketcher.Constraint("Coincident", 59, 2, 57, 2),
    Sketcher.Constraint("Horizontal", 1),
    Sketcher.Constraint("Vertical", 2),
    Sketcher.Constraint("Vertical", 3),
    Sketcher.Constraint("Horizontal", 4),
    Sketcher.Constraint("Horizontal", 7),
    Sketcher.Constraint("Vertical", 8),
    Sketcher.Constraint("Vertical", 10),
    Sketcher.Constraint("Horizontal", 11),
    Sketcher.Constraint("Horizontal", 12),
    Sketcher.Constraint("Vertical", 13),
    Sketcher.Constraint("Vertical", 15),
    Sketcher.Constraint("Horizontal", 16),
    Sketcher.Constraint("Horizontal", 18),
    Sketcher.Constraint("Vertical", 19),
    Sketcher.Constraint("Vertical", 21),
    Sketcher.Constraint("Horizontal", 22),
    Sketcher.Constraint("Vertical", 25),
    Sketcher.Constraint("Horizontal", 26),
    Sketcher.Constraint("Horizontal", 28),
    Sketcher.Constraint("Vertical", 29),
    Sketcher.Constraint("Vertical", 31),
    Sketcher.Constraint("Horizontal", 32),
    Sketcher.Constraint("Horizontal", 34),
    Sketcher.Constraint("Vertical", 35),
    Sketcher.Constraint("Vertical", 37),
    Sketcher.Constraint("Horizontal", 38),
    Sketcher.Constraint("Horizontal", 40),
    Sketcher.Constraint("Vertical", 41),
    Sketcher.Constraint("Vertical", 43),
    Sketcher.Constraint("Horizontal", 44),
    Sketcher.Constraint("Horizontal", 46),
    Sketcher.Constraint("Vertical", 47),
    Sketcher.Constraint("Vertical", 49),
    Sketcher.Constraint("Horizontal", 50),
    Sketcher.Constraint("Horizontal", 52),
    Sketcher.Constraint("Vertical", 53),
    Sketcher.Constraint("Vertical", 55),
    Sketcher.Constraint("Horizontal", 56),
    Sketcher.Constraint("Horizontal", 58),
    Sketcher.Constraint("Vertical", 59),
    Sketcher.Constraint("Coincident", 1, 2, 0, 3),
    Sketcher.Constraint("Coincident", 3, 2, 5, 3),
    Sketcher.Constraint("Coincident", 7, 2, 6, 3),
    Sketcher.Constraint("Coincident", 10, 2, 9, 3),
    Sketcher.Constraint("Coincident", 12, 2, 14, 3),
    Sketcher.Constraint("Coincident", 15, 2, 17, 3),
    Sketcher.Constraint("Coincident", 18, 2, 20, 3),
    Sketcher.Constraint("Coincident", 21, 2, 23, 3),
    Sketcher.Constraint("Coincident", 25, 2, 24, 3),
    Sketcher.Constraint("Coincident", 28, 2, 27, 3),
    Sketcher.Constraint("Coincident", 31, 2, 30, 3),
    Sketcher.Constraint("Coincident", 34, 2, 33, 3),
    Sketcher.Constraint("Coincident", 37, 2, 36, 3),
    Sketcher.Constraint("Coincident", 40, 2, 39, 3),
    Sketcher.Constraint("Coincident", 43, 2, 42, 3),
    Sketcher.Constraint("Coincident", 46, 2, 45, 3),
    Sketcher.Constraint("Coincident", 49, 2, 48, 3),
    Sketcher.Constraint("Coincident", 52, 2, 51, 3),
    Sketcher.Constraint("Coincident", 55, 2, 54, 3),
    Sketcher.Constraint("Coincident", 58, 2, 57, 3),
    Sketcher.Constraint("Equal", 0, 5),
    Sketcher.Constraint("Equal", 5, 6),
    Sketcher.Constraint("Equal", 6, 9),
    Sketcher.Constraint("Equal", 9, 14),
    Sketcher.Constraint("Equal", 14, 17),
    Sketcher.Constraint("Equal", 17, 20),
    Sketcher.Constraint("Equal", 20, 23),
    Sketcher.Constraint("Equal", 23, 24),
    Sketcher.Constraint("Equal", 24, 27),
    Sketcher.Constraint("Equal", 27, 30),
    Sketcher.Constraint("Equal", 30, 33),
    Sketcher.Constraint("Equal", 33, 36),
    Sketcher.Constraint("Equal", 36, 39),
    Sketcher.Constraint("Equal", 39, 42),
    Sketcher.Constraint("Equal", 42, 45),
    Sketcher.Constraint("Equal", 45, 48),
    Sketcher.Constraint("Equal", 48, 51),
    Sketcher.Constraint("Equal", 51, 54),
    Sketcher.Constraint("Equal", 54, 57),
    Sketcher.Constraint("Symmetric", 9, 3, 14, 3, -2),
    Sketcher.Constraint("Symmetric", 6, 3, 17, 3, -2),
    Sketcher.Constraint("Symmetric", 5, 3, 20, 3, -2),
    Sketcher.Constraint("Symmetric", 0, 3, 23, 3, -2),
    Sketcher.Constraint("Symmetric", 48, 3, 51, 3, -2),
    Sketcher.Constraint("Symmetric", 54, 3, 57, 3, -2),
    Sketcher.Constraint("Horizontal", 24, 3, 27, 3),
    Sketcher.Constraint("Horizontal", 30, 3, 33, 3),
    Sketcher.Constraint("Horizontal", 36, 3, 39, 3),
    Sketcher.Constraint("Horizontal", 42, 3, 45, 3),
    Sketcher.Constraint("Vertical", 0, 3, 5, 3),
    Sketcher.Constraint("Vertical", 5, 3, 6, 3),
    Sketcher.Constraint("Vertical", 6, 3, 9, 3),
    Sketcher.Constraint("Vertical", 27, 3, 30, 3),
    Sketcher.Constraint("Vertical", 24, 3, 33, 3),
    Sketcher.Constraint("Vertical", 39, 3, 42, 3),
    Sketcher.Constraint("Vertical", 36, 3, 45, 3),
    Sketcher.Constraint("Vertical", 51, 3, 54, 3),
    Sketcher.Constraint("Radius", 0, Q("0.3 mm")),
    Sketcher.Constraint("DistanceX", 0, 3, -1, 1, Q("50 mm")),
    Sketcher.Constraint("DistanceY", -1, 1, 5, 3, Q("1 mm")),
    Sketcher.Constraint("DistanceY", 9, 3, -1, 1, Q("16 mm")),
    Sketcher.Constraint("DistanceX", 27, 3, -1, 1, Q("18 mm")),
    Sketcher.Constraint("DistanceX", -1, 1, 36, 3, Q("16 mm")),
    Sketcher.Constraint("DistanceX", 48, 3, -1, 1, Q("10 mm")),
    Sketcher.Constraint("DistanceY", 54, 3, -1, 1, Q("12 mm")),
    Sketcher.Constraint("DistanceY", 0, 3, -1, 1, Q("4.1 mm")),
    Sketcher.Constraint("DistanceY", 6, 3, -1, 1, Q("22.1 mm")),
    Sketcher.Constraint("DistanceX", 24, 3, -1, 1, Q("22.1 mm")),
    Sketcher.Constraint("DistanceY", 24, 3, -1, 1, Q("7.4 mm")),
    Sketcher.Constraint("DistanceY", 30, 3, -1, 1, Q("4.3 mm")),
    Sketcher.Constraint("DistanceY", 36, 3, -1, 1, Q("22.7 mm")),
    Sketcher.Constraint("DistanceX", -1, 1, 39, 3, Q("20.1 mm")),
    Sketcher.Constraint("DistanceY", 42, 3, -1, 1, Q("19.6 mm")),
    Sketcher.Constraint("DistanceY", 48, 3, -1, 1, Q("15.1 mm")),
])
sketch5.setExpression("Constraints[157]", "Params.sketch5_radius")
pocket3 = body.newObject("PartDesign::Pocket", "Pocket002")
pocket3.Profile = sketch5
pocket3.setExpression("Length", "Params.pocket3_length")
pocket3.Reversed = True

doc.recompute()
